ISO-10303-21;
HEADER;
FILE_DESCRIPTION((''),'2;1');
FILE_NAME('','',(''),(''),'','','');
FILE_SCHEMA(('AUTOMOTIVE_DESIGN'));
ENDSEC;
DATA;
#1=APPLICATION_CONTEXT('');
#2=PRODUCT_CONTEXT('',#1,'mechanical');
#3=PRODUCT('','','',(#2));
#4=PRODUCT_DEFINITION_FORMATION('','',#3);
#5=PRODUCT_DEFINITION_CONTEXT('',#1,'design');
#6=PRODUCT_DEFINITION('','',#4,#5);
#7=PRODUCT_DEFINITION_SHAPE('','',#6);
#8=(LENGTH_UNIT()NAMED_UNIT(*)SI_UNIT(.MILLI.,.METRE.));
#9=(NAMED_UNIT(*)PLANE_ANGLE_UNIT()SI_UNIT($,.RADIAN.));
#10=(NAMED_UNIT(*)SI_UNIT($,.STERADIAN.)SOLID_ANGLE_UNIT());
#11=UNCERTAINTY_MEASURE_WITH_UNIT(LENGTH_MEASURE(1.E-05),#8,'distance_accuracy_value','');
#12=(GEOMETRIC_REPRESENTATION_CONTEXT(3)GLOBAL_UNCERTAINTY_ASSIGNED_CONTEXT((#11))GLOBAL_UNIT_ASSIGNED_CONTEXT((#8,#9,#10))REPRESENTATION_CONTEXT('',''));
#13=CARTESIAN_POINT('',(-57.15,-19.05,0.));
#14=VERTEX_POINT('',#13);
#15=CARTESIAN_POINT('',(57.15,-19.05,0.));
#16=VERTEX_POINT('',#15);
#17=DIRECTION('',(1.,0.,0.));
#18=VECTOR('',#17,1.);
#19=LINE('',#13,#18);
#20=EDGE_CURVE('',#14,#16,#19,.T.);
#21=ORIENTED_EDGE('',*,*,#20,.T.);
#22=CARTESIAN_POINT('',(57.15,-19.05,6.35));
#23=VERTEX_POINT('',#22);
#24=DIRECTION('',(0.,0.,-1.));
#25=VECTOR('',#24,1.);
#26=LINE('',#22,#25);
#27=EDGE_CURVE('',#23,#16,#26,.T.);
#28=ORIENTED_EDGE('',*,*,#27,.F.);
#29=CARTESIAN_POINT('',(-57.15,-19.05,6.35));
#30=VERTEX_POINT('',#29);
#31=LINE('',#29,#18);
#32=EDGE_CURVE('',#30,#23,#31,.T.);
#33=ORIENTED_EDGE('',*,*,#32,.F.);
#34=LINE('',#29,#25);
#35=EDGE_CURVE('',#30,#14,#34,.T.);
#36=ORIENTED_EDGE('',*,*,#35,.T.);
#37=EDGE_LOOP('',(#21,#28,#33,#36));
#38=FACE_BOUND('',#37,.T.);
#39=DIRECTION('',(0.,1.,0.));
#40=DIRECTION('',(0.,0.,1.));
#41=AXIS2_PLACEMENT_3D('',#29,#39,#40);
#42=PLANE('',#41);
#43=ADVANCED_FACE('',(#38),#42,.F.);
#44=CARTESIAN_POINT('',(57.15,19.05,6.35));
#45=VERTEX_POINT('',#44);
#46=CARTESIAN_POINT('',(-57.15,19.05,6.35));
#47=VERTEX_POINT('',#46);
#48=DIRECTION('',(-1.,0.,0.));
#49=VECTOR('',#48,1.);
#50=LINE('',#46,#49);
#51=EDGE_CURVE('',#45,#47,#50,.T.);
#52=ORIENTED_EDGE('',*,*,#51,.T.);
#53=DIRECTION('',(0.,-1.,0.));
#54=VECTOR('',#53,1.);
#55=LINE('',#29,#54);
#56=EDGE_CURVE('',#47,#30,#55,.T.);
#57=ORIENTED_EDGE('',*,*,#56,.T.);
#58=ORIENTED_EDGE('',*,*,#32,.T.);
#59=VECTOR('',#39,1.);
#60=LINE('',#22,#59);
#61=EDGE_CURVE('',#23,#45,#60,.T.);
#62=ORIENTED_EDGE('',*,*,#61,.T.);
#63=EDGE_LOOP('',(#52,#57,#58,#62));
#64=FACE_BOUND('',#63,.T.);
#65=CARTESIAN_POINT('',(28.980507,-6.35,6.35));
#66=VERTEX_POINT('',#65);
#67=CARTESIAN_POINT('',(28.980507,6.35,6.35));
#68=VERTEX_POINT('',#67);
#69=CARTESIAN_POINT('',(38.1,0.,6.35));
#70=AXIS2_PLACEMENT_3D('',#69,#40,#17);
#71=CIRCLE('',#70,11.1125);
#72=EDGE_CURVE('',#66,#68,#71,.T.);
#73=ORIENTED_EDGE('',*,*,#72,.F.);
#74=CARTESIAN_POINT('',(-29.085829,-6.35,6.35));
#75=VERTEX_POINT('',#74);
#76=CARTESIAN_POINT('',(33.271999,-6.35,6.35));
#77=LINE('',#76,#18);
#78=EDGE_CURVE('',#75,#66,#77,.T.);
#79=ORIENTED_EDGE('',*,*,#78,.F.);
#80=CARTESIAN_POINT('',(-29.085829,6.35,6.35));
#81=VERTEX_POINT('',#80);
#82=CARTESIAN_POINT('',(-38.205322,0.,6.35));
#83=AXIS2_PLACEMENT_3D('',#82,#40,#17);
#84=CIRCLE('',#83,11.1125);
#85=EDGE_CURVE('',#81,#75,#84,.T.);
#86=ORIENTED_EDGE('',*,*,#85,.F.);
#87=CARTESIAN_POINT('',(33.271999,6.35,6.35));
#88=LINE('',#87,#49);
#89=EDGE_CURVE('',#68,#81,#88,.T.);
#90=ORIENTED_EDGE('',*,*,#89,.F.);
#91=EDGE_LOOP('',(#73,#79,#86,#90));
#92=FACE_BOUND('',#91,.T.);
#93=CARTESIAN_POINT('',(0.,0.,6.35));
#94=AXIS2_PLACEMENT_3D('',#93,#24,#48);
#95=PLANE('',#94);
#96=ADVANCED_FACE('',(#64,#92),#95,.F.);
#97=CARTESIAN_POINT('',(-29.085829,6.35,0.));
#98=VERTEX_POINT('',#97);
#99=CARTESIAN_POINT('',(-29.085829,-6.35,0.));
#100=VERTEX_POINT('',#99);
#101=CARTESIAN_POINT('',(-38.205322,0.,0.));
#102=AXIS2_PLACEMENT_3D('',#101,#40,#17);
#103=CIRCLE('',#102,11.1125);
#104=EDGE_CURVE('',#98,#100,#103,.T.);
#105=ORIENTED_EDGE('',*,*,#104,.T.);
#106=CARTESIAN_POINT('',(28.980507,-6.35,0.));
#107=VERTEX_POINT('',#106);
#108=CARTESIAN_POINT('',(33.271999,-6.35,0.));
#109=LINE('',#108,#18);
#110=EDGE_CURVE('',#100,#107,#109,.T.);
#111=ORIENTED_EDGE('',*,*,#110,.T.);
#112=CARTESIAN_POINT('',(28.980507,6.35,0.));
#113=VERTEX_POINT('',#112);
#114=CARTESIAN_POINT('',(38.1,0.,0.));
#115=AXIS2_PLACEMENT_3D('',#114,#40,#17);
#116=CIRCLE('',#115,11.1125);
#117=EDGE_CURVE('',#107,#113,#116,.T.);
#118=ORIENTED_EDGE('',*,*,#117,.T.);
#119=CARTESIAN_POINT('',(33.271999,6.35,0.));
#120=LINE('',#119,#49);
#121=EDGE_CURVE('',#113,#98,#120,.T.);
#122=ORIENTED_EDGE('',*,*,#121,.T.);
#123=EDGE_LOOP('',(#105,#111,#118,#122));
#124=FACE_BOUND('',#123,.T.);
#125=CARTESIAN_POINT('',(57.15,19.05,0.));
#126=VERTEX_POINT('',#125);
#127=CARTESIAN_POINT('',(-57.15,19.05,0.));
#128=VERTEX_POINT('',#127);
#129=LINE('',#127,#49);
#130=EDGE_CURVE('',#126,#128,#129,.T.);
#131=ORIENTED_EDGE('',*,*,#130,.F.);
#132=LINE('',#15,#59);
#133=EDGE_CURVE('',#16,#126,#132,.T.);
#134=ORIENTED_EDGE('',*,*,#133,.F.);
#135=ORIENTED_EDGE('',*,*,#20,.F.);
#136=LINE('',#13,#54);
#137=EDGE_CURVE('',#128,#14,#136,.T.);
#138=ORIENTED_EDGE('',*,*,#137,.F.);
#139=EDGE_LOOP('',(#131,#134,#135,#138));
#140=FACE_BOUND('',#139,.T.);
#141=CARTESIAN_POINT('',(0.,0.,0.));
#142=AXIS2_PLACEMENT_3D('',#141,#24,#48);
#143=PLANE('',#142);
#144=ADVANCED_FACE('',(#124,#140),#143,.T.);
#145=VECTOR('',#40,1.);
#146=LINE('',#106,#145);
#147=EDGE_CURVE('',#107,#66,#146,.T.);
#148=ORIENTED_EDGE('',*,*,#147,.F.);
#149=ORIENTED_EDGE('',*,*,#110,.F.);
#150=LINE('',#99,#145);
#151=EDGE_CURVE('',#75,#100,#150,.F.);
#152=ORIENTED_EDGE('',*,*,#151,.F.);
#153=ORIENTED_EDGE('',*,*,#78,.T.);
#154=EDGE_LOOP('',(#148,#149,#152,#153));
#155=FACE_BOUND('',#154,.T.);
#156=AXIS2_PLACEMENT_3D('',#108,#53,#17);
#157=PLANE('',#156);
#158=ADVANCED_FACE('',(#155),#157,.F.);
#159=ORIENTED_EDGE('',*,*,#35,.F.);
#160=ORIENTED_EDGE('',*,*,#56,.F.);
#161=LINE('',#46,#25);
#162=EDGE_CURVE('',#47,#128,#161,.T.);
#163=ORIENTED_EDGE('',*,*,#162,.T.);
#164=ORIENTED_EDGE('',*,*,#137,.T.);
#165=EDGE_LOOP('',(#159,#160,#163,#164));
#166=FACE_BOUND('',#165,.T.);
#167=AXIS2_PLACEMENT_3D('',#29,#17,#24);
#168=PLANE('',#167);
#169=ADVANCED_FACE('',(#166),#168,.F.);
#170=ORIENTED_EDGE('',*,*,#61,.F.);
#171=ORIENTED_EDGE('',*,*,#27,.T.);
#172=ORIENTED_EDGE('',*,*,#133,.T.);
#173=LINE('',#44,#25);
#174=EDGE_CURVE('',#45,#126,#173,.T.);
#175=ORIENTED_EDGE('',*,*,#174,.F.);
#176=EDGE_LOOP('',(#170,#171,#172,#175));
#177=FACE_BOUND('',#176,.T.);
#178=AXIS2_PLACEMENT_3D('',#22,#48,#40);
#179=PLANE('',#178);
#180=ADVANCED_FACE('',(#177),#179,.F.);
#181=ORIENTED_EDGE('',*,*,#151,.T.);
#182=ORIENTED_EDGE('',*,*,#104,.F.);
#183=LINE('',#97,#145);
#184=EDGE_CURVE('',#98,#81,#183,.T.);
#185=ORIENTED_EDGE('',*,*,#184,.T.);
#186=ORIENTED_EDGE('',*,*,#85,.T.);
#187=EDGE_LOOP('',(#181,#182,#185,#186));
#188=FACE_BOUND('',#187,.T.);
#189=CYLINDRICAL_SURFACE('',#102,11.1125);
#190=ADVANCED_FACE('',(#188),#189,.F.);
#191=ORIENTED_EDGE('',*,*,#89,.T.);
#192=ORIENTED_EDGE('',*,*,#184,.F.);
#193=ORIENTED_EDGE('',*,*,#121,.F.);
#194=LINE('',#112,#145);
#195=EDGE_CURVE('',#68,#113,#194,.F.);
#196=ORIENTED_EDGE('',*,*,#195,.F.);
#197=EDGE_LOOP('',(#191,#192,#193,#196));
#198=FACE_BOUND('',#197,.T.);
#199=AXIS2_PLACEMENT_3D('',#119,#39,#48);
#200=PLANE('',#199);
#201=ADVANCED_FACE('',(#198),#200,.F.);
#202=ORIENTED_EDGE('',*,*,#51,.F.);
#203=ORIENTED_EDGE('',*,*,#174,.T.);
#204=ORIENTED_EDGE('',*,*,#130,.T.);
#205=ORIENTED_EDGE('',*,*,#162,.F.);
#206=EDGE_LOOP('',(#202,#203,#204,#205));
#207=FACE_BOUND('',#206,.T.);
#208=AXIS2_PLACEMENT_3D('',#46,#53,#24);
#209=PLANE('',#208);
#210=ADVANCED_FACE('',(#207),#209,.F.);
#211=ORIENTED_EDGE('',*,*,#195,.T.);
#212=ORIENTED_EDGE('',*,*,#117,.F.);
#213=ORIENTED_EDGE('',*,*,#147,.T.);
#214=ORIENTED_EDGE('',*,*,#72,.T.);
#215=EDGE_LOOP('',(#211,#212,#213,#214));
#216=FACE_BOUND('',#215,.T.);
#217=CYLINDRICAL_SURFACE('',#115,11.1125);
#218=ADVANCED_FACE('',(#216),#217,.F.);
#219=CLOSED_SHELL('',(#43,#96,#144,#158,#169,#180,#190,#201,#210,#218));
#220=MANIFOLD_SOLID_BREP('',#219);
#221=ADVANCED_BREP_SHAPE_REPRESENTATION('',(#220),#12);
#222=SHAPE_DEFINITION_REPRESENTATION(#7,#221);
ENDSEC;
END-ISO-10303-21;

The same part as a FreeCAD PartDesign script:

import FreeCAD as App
import Part
import Sketcher
Q = App.Units.Quantity


def add_polygon(sketch, points):
    """Adds a closed chain of lines whose ends are joined by coincident constraints."""
    first, n = sketch.GeometryCount, len(points)
    for a, b in zip(points, points[1:] + points[:1]):
        sketch.addGeometry(Part.LineSegment(App.Vector(*a, 0), App.Vector(*b, 0)), False)
    for i in range(n):
        sketch.addConstraint(Sketcher.Constraint("Coincident", first + i, 2, first + (i + 1) % n, 1))

doc = App.newDocument("Part")
params = doc.addObject("Spreadsheet::Sheet", "Params")
for row, (alias, value) in enumerate([
    ("sketch1_width", "4.5 in"),
    ("sketch1_height", "1.5 in"),
    ("pad1_length", "0.25 in"),
    ("sketch2_diameter", "0.875 in"),
    ("sketch3_height", "0.5 in"),
], start=1):
    params.set(f"A{row}", alias)
    params.set(f"B{row}", "=" + value)
    params.setAlias(f"B{row}", alias)

body = doc.addObject("PartDesign::Body", "Body")

# Sketch on XY plane
sketch1 = body.newObject("Sketcher::SketchObject", "Sketch")
sketch1.AttachmentSupport = (doc.getObject("XY_Plane"), [""])
sketch1.MapMode = "FlatFace"
add_polygon(sketch1, [(-57.15, 19.05), (-57.15, -19.05), (57.15, -19.05), (57.15, 19.05)])  # lines 0-3
sketch1.addConstraint([
    Sketcher.Constraint("Vertical", 0),
    Sketcher.Constraint("Horizontal", 1),
    Sketcher.Constraint("Vertical", 2),
    Sketcher.Constraint("Horizontal", 3),
    Sketcher.Constraint("Symmetric", 0, 2, 2, 2, -1, 1),
    Sketcher.Constraint("DistanceX", 1, 1, 1, 2, Q("4.5 in")),
    Sketcher.Constraint("DistanceY", 0, 2, 0, 1, Q("1.5 in")),
])
sketch1.setExpression("Constraints[9]", "Params.sketch1_width")
sketch1.setExpression("Constraints[10]", "Params.sketch1_height")
pad1 = body.newObject("PartDesign::Pad", "Pad")
pad1.Profile = sketch1
pad1.setExpression("Length", "Params.pad1_length")

# Sketch on XY plane
sketch2 = body.newObject("Sketcher::SketchObject", "Sketch001")
sketch2.AttachmentSupport = (doc.getObject("XY_Plane"), [""])
sketch2.MapMode = "FlatFace"
sketch2.AttachmentOffset = App.Placement(App.Vector(0, 0, 0.25 * 25.4), App.Rotation())
sketch2.addGeometry([
    Part.Circle(App.Vector(-38.205322, 0, 0), App.Vector(0, 0, 1), 11.1125),
    Part.Circle(App.Vector(38.1, 0, 0), App.Vector(0, 0, 1), 11.1125),
], False)
sketch2.addConstraint([
    Sketcher.Constraint("Equal", 0, 1),
    Sketcher.Constraint("PointOnObject", 0, 3, -1),
    Sketcher.Constraint("PointOnObject", 1, 3, -1),
    Sketcher.Constraint("Diameter", 0, Q("0.875 in")),
    Sketcher.Constraint("DistanceX", -1, 1, 1, 3, Q("1.5 in")),
    Sketcher.Constraint("DistanceX", 0, 3, -1, 1, 38.205322),
])
sketch2.setExpression("Constraints[3]", "Params.sketch2_diameter")
pocket1 = body.newObject("PartDesign::Pocket", "Pocket")
pocket1.Profile = sketch2
pocket1.Type = "ThroughAll"

# Sketch on XY plane
sketch3 = body.newObject("Sketcher::SketchObject", "Sketch002")
sketch3.AttachmentSupport = (doc.getObject("XY_Plane"), [""])
sketch3.MapMode = "FlatFace"
sketch3.AttachmentOffset = App.Placement(App.Vector(0, 0, 0.25 * 25.4), App.Rotation())
add_polygon(sketch3, [(-33.271999, 6.35), (-33.271999, -6.35), (33.271999, -6.35), (33.271999, 6.35)])  # lines 0-3
sketch3.addConstraint([
    Sketcher.Constraint("Vertical", 0),
    Sketcher.Constraint("Horizontal", 1),
    Sketcher.Constraint("Vertical", 2),
    Sketcher.Constraint("Horizontal", 3),
    Sketcher.Constraint("Symmetric", 0, 2, 2, 2, -1, 1),
    Sketcher.Constraint("DistanceY", 0, 2, 0, 1, Q("0.5 in")),
    Sketcher.Constraint("DistanceX", 0, 2, -1, 1, 33.271999),
])
sketch3.setExpression("Constraints[9]", "Params.sketch3_height")
pocket2 = body.newObject("PartDesign::Pocket", "Pocket001")
pocket2.Profile = sketch3
pocket2.Type = "ThroughAll"

doc.recompute()
